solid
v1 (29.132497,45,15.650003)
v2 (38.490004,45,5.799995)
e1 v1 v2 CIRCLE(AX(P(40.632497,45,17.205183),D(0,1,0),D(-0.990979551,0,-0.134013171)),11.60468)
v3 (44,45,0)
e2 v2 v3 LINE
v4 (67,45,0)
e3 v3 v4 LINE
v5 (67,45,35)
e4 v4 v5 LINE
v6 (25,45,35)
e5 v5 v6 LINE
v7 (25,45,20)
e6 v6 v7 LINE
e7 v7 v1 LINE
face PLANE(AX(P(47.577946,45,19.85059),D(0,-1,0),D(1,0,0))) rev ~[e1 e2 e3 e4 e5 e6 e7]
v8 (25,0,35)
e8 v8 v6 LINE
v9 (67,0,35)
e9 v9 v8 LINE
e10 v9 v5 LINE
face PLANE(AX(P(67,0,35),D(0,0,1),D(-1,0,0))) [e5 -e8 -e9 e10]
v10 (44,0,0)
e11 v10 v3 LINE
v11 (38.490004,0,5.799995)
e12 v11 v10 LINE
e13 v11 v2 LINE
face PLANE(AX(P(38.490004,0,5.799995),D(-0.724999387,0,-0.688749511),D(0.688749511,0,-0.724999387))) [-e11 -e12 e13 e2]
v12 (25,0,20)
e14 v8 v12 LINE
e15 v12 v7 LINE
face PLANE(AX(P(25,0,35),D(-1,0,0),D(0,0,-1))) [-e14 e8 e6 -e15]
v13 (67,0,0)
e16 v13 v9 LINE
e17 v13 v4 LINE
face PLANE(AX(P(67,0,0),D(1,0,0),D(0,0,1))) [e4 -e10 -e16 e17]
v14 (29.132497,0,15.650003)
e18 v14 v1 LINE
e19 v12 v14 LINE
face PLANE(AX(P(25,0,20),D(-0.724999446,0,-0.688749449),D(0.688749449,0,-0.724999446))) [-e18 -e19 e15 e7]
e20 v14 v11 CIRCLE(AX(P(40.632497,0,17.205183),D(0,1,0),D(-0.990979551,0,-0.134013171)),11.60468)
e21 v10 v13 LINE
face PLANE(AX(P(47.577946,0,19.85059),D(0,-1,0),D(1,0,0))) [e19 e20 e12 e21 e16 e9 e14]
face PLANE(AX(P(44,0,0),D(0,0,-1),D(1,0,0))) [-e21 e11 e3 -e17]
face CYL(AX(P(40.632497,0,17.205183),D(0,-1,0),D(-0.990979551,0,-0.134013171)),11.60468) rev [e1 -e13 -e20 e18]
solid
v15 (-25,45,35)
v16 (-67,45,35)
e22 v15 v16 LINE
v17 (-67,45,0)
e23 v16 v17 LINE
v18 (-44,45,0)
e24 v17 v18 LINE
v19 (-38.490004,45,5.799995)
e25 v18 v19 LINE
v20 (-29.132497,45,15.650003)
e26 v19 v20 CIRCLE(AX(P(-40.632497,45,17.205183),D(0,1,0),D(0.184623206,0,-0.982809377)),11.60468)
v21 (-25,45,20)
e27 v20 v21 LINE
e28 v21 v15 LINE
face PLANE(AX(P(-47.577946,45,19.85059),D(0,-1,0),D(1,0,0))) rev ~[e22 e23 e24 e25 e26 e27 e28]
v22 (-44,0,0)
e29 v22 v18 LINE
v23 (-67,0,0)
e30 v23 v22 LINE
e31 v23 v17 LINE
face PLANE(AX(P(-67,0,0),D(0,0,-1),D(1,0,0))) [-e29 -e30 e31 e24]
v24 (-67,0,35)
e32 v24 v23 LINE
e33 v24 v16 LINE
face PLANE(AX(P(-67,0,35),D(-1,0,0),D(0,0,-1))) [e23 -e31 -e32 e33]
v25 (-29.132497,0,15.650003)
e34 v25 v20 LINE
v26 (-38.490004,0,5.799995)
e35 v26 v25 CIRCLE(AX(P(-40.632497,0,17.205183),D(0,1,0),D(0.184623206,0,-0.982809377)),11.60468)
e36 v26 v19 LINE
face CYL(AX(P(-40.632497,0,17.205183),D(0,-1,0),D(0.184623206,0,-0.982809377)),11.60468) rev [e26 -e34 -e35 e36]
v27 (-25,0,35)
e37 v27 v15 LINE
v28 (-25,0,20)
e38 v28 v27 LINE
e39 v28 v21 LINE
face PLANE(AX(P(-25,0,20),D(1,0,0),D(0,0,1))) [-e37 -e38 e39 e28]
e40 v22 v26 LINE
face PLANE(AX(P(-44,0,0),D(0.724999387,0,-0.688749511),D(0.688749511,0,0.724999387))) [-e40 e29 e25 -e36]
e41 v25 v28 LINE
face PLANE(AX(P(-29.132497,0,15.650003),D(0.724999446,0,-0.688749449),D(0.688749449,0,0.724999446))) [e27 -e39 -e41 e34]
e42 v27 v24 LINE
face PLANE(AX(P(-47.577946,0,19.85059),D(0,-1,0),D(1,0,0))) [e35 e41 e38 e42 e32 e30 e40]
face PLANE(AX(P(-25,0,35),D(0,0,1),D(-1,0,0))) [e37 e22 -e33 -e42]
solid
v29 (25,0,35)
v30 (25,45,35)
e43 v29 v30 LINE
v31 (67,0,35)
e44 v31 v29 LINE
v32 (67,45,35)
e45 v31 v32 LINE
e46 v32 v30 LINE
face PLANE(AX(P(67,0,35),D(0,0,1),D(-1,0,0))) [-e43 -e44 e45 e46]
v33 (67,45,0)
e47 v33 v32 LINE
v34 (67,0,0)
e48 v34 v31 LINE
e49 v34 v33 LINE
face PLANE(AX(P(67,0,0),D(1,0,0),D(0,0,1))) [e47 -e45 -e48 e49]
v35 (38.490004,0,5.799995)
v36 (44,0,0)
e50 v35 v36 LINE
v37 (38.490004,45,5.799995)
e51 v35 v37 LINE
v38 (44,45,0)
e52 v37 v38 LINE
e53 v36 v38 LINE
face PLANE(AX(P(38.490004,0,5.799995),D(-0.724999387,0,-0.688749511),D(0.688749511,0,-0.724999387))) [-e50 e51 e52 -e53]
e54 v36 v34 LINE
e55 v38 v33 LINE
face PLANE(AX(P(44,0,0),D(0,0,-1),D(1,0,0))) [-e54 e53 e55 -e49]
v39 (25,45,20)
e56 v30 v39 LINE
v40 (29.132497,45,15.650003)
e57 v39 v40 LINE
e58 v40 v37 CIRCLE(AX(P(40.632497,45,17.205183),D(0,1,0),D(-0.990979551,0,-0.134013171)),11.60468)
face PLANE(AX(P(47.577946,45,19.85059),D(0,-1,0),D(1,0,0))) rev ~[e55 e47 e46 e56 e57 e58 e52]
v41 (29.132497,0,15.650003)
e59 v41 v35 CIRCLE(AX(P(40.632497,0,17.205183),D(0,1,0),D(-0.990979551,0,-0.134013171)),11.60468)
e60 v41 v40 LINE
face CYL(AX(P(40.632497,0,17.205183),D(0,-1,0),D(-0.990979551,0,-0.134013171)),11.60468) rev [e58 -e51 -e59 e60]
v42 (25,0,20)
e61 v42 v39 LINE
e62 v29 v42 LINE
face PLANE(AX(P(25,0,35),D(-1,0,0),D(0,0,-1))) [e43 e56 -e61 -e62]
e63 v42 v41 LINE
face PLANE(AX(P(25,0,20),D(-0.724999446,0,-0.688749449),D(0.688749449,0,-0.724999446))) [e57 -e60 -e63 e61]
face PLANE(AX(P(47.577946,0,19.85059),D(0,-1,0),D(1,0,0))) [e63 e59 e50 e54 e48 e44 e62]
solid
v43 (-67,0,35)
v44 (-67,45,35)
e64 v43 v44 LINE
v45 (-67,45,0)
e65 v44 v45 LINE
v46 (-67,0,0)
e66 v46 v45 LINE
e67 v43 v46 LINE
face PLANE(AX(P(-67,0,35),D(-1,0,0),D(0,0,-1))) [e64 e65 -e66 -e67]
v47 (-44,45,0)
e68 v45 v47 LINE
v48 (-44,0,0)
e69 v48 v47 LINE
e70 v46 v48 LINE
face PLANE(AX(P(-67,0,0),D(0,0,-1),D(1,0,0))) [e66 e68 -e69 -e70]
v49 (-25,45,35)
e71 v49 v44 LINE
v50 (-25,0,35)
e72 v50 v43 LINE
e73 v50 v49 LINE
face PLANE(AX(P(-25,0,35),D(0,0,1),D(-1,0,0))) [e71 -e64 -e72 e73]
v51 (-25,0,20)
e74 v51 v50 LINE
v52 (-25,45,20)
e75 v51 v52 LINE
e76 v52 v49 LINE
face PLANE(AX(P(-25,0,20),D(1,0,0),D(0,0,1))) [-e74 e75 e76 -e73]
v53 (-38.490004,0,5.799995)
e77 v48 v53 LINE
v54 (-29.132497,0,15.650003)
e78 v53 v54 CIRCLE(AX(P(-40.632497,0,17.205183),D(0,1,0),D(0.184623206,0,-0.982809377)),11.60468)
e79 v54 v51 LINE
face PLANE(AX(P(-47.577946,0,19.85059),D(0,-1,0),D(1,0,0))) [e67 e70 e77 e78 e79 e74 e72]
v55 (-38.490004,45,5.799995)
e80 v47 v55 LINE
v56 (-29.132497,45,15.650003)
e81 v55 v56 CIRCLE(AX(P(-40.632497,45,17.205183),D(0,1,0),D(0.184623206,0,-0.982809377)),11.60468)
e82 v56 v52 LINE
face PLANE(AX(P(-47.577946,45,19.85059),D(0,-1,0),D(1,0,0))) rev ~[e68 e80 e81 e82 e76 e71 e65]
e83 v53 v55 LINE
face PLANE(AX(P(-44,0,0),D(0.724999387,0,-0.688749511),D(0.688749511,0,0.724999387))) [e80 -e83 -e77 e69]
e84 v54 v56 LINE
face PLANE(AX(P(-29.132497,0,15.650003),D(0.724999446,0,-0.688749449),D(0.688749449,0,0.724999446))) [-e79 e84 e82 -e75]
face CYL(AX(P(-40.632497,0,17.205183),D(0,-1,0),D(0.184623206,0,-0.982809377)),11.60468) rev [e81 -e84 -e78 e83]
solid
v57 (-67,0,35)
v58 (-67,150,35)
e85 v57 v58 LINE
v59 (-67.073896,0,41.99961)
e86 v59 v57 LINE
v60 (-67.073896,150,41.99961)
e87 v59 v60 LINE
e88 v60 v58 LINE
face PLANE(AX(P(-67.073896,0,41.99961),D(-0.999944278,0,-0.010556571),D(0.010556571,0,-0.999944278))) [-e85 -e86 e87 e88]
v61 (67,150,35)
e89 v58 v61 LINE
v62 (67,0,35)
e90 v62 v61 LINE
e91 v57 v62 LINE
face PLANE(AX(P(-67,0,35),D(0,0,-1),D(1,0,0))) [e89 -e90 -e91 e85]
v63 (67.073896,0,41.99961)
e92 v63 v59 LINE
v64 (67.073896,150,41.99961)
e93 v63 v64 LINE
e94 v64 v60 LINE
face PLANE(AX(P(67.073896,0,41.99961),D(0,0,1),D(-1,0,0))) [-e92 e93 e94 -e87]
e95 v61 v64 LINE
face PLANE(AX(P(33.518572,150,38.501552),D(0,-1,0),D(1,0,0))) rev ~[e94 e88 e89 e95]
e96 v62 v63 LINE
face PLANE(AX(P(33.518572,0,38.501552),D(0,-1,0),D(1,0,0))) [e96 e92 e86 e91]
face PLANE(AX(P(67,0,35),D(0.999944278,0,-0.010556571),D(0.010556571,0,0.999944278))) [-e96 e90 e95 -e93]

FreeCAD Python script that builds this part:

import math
import FreeCAD as App
import Part
import Sketcher

V = App.Vector
Q = App.Units.Quantity


def add_polygon(sketch, points):
    """Adds a closed chain of lines whose ends are joined by coincident constraints."""
    first, n = sketch.GeometryCount, len(points)
    for a, b in zip(points, points[1:] + points[:1]):
        sketch.addGeometry(Part.LineSegment(App.Vector(*a, 0), App.Vector(*b, 0)), False)
    for i in range(n):
        sketch.addConstraint(Sketcher.Constraint("Coincident", first + i, 2, first + (i + 1) % n, 1))

doc = App.newDocument("Part")
body = doc.addObject("PartDesign::Body", "Body")
body.AllowCompound = True

sketch1 = body.newObject("Sketcher::SketchObject", "Sketch")
sketch1.AttachmentSupport = (doc.getObject("XZ_Plane"), [""])
sketch1.MapMode = "FlatFace"
sketch1.addGeometry(Part.LineSegment(V(-25, 20, 0), V(-25, 35, 0)), False)
sketch1.addGeometry(Part.LineSegment(V(-25, 35, 0), V(-67, 35, 0)), False)
sketch1.addGeometry(Part.LineSegment(V(-67, 35, 0), V(-67, 0, 0)), False)
sketch1.addGeometry(Part.LineSegment(V(-67, 0, 0), V(-44, 0, 0)), False)
sketch1.addGeometry(Part.LineSegment(V(-44, 0, 0), V(-38.490004, 5.799995, 0)), False)
sketch1.addGeometry(Part.ArcOfCircle(Part.Circle(V(-40.632497, 17.205183, 0), V(0, 0, 1), 11.60468), math.radians(-7.70156), math.radians(280.639165)), False)
sketch1.addGeometry(Part.LineSegment(V(-29.132497, 15.650003, 0), V(-25, 20, 0)), False)
sketch1.addGeometry(Part.LineSegment(V(67, 35, 0), V(25, 35, 0)), False)
sketch1.addGeometry(Part.LineSegment(V(25, 35, 0), V(25, 20, 0)), False)
sketch1.addGeometry(Part.LineSegment(V(25, 20, 0), V(29.132497, 15.650003, 0)), False)
sketch1.addGeometry(Part.ArcOfCircle(Part.Circle(V(40.632497, 17.205183, 0), V(0, 0, 1), 11.60468), math.radians(-100.639165), math.radians(187.70156)), False)
sketch1.addGeometry(Part.LineSegment(V(38.490004, 5.799995, 0), V(44, 0, 0)), False)
sketch1.addGeometry(Part.LineSegment(V(44, 0, 0), V(67, 0, 0)), False)
sketch1.addGeometry(Part.LineSegment(V(67, 0, 0), V(67, 35, 0)), False)
sketch1.addConstraint(Sketcher.Constraint("Coincident", 0, 2, 1, 1))
sketch1.addConstraint(Sketcher.Constraint("Coincident", 1, 2, 2, 1))
sketch1.addConstraint(Sketcher.Constraint("Coincident", 2, 2, 3, 1))
sketch1.addConstraint(Sketcher.Constraint("Coincident", 3, 2, 4, 1))
sketch1.addConstraint(Sketcher.Constraint("Coincident", 4, 2, 5, 2))
sketch1.addConstraint(Sketcher.Constraint("Coincident", 5, 1, 6, 1))
sketch1.addConstraint(Sketcher.Constraint("Coincident", 6, 2, 0, 1))
sketch1.addConstraint(Sketcher.Constraint("Coincident", 7, 2, 8, 1))
sketch1.addConstraint(Sketcher.Constraint("Coincident", 8, 2, 9, 1))
sketch1.addConstraint(Sketcher.Constraint("Coincident", 9, 2, 10, 2))
sketch1.addConstraint(Sketcher.Constraint("Coincident", 10, 1, 11, 1))
sketch1.addConstraint(Sketcher.Constraint("Coincident", 11, 2, 12, 1))
sketch1.addConstraint(Sketcher.Constraint("Coincident", 12, 2, 13, 1))
sketch1.addConstraint(Sketcher.Constraint("Coincident", 13, 2, 7, 1))
sketch1.addConstraint(Sketcher.Constraint("Vertical", 0))
sketch1.addConstraint(Sketcher.Constraint("Horizontal", 1))
sketch1.addConstraint(Sketcher.Constraint("Vertical", 2))
sketch1.addConstraint(Sketcher.Constraint("Horizontal", 3))
sketch1.addConstraint(Sketcher.Constraint("Horizontal", 7))
sketch1.addConstraint(Sketcher.Constraint("Vertical", 8))
sketch1.addConstraint(Sketcher.Constraint("Horizontal", 12))
sketch1.addConstraint(Sketcher.Constraint("Vertical", 13))
sketch1.addConstraint(Sketcher.Constraint("Equal", 5, 10))
sketch1.addConstraint(Sketcher.Constraint("Symmetric", 3, 2, 11, 2, -1, 1))
sketch1.addConstraint(Sketcher.Constraint("Symmetric", 5, 3, 10, 3, -2))
sketch1.addConstraint(Sketcher.Constraint("Symmetric", 0, 2, 7, 2, -2))
sketch1.addConstraint(Sketcher.Constraint("Symmetric", 2, 2, 12, 2, -2))
sketch1.addConstraint(Sketcher.Constraint("Parallel", 4, 6))
sketch1.addConstraint(Sketcher.Constraint("Parallel", 9, 11))
sketch1.addConstraint(Sketcher.Constraint("Horizontal", 6, 2, 8, 2))
sketch1.addConstraint(Sketcher.Constraint("Horizontal", 5, 1, 9, 2))
sketch1.addConstraint(Sketcher.Constraint("DistanceX", 1, 2, 1, 1, Q("42 mm")))
sketch1.addConstraint(Sketcher.Constraint("DistanceX", 3, 1, 3, 2, Q("23 mm")))
sketch1.addConstraint(Sketcher.Constraint("DistanceY", 0, 1, 0, 2, Q("15 mm")))
sketch1.addConstraint(Sketcher.Constraint("DistanceY", 2, 2, 2, 1, Q("35 mm")))
sketch1.addConstraint(Sketcher.Constraint("Distance", 4, Q("8 mm")))
sketch1.addConstraint(Sketcher.Constraint("Distance", 6, Q("6 mm")))
sketch1.addConstraint(Sketcher.Constraint("DistanceX", 0, 2, -1, 1, Q("25 mm")))
sketch1.addConstraint(Sketcher.Constraint("DistanceX", 5, 3, 5, 1, Q("11.5 mm")))
sketch1.addConstraint(Sketcher.Constraint("Radius", 5, Q("11.60468 mm")))
pad1 = body.newObject("PartDesign::Pad", "Pad")
pad1.Profile = sketch1
pad1.Length = 45
pad1.Reversed = True
body2 = doc.addObject("PartDesign::Body", "Body001")

sketch2 = body2.newObject("Sketcher::SketchObject", "Sketch001")
sketch2.AttachmentSupport = (doc.getObject("XZ_Plane001"), [""])
sketch2.MapMode = "FlatFace"
add_polygon(sketch2, [(67, 35), (67.073896, 41.99961), (-67.073896, 41.99961), (-67, 35)])
sketch2.addConstraint(Sketcher.Constraint("Horizontal", 1))
sketch2.addConstraint(Sketcher.Constraint("Horizontal", 3))
sketch2.addConstraint(Sketcher.Constraint("Equal", 0, 2))
sketch2.addConstraint(Sketcher.Constraint("DistanceX", 3, 1, 3, 2, Q("134 mm")))
sketch2.addConstraint(Sketcher.Constraint("Distance", 0, Q("7 mm")))
sketch2.addConstraint(Sketcher.Constraint("DistanceX", 2, 2, -1, 1, Q("67 mm")))
sketch2.addConstraint(Sketcher.Constraint("DistanceY", -1, 1, 2, 2, Q("35 mm")))
sketch2.addConstraint(Sketcher.Constraint("DistanceX", 1, 2, 1, 1, Q("134.147792 mm")))
pad2 = body2.newObject("PartDesign::Pad", "Pad001")
pad2.Profile = sketch2
pad2.Length = 150
pad2.Reversed = True
body3 = doc.addObject("PartDesign::Body", "Body002")
body3.AllowCompound = True

sketch3 = body3.newObject("Sketcher::SketchObject", "Sketch002")
sketch3.AttachmentSupport = (doc.getObject("XZ_Plane002"), [""])
sketch3.MapMode = "FlatFace"
sketch3.addGeometry(Part.LineSegment(V(-25, 20, 0), V(-25, 35, 0)), False)
sketch3.addGeometry(Part.LineSegment(V(-25, 35, 0), V(-67, 35, 0)), False)
sketch3.addGeometry(Part.LineSegment(V(-67, 35, 0), V(-67, 0, 0)), False)
sketch3.addGeometry(Part.LineSegment(V(-67, 0, 0), V(-44, 0, 0)), False)
sketch3.addGeometry(Part.LineSegment(V(-44, 0, 0), V(-38.490004, 5.799995, 0)), False)
sketch3.addGeometry(Part.ArcOfCircle(Part.Circle(V(-40.632497, 17.205183, 0), V(0, 0, 1), 11.60468), math.radians(-7.70156), math.radians(280.639165)), False)
sketch3.addGeometry(Part.LineSegment(V(-29.132497, 15.650003, 0), V(-25, 20, 0)), False)
sketch3.addGeometry(Part.LineSegment(V(67, 35, 0), V(25, 35, 0)), False)
sketch3.addGeometry(Part.LineSegment(V(25, 35, 0), V(25, 20, 0)), False)
sketch3.addGeometry(Part.LineSegment(V(25, 20, 0), V(29.132497, 15.650003, 0)), False)
sketch3.addGeometry(Part.ArcOfCircle(Part.Circle(V(40.632497, 17.205183, 0), V(0, 0, 1), 11.60468), math.radians(-100.639165), math.radians(187.70156)), False)
sketch3.addGeometry(Part.LineSegment(V(38.490004, 5.799995, 0), V(44, 0, 0)), False)
sketch3.addGeometry(Part.LineSegment(V(44, 0, 0), V(67, 0, 0)), False)
sketch3.addGeometry(Part.LineSegment(V(67, 0, 0), V(67, 35, 0)), False)
sketch3.addConstraint(Sketcher.Constraint("Coincident", 0, 2, 1, 1))
sketch3.addConstraint(Sketcher.Constraint("Coincident", 1, 2, 2, 1))
sketch3.addConstraint(Sketcher.Constraint("Coincident", 2, 2, 3, 1))
sketch3.addConstraint(Sketcher.Constraint("Coincident", 3, 2, 4, 1))
sketch3.addConstraint(Sketcher.Constraint("Coincident", 4, 2, 5, 2))
sketch3.addConstraint(Sketcher.Constraint("Coincident", 5, 1, 6, 1))
sketch3.addConstraint(Sketcher.Constraint("Coincident", 6, 2, 0, 1))
sketch3.addConstraint(Sketcher.Constraint("Coincident", 7, 2, 8, 1))
sketch3.addConstraint(Sketcher.Constraint("Coincident", 8, 2, 9, 1))
sketch3.addConstraint(Sketcher.Constraint("Coincident", 9, 2, 10, 2))
sketch3.addConstraint(Sketcher.Constraint("Coincident", 10, 1, 11, 1))
sketch3.addConstraint(Sketcher.Constraint("Coincident", 11, 2, 12, 1))
sketch3.addConstraint(Sketcher.Constraint("Coincident", 12, 2, 13, 1))
sketch3.addConstraint(Sketcher.Constraint("Coincident", 13, 2, 7, 1))
sketch3.addConstraint(Sketcher.Constraint("Vertical", 0))
sketch3.addConstraint(Sketcher.Constraint("Horizontal", 1))
sketch3.addConstraint(Sketcher.Constraint("Vertical", 2))
sketch3.addConstraint(Sketcher.Constraint("Horizontal", 3))
sketch3.addConstraint(Sketcher.Constraint("Horizontal", 7))
sketch3.addConstraint(Sketcher.Constraint("Vertical", 8))
sketch3.addConstraint(Sketcher.Constraint("Horizontal", 12))
sketch3.addConstraint(Sketcher.Constraint("Vertical", 13))
sketch3.addConstraint(Sketcher.Constraint("Equal", 5, 10))
sketch3.addConstraint(Sketcher.Constraint("Symmetric", 3, 2, 11, 2, -1, 1))
sketch3.addConstraint(Sketcher.Constraint("Symmetric", 5, 3, 10, 3, -2))
sketch3.addConstraint(Sketcher.Constraint("Symmetric", 0, 2, 7, 2, -2))
sketch3.addConstraint(Sketcher.Constraint("Symmetric", 2, 2, 12, 2, -2))
sketch3.addConstraint(Sketcher.Constraint("Parallel", 4, 6))
sketch3.addConstraint(Sketcher.Constraint("Parallel", 9, 11))
sketch3.addConstraint(Sketcher.Constraint("Horizontal", 6, 2, 8, 2))
sketch3.addConstraint(Sketcher.Constraint("Horizontal", 5, 1, 9, 2))
sketch3.addConstraint(Sketcher.Constraint("DistanceX", 1, 2, 1, 1, Q("42 mm")))
sketch3.addConstraint(Sketcher.Constraint("DistanceX", 3, 1, 3, 2, Q("23 mm")))
sketch3.addConstraint(Sketcher.Constraint("DistanceY", 0, 1, 0, 2, Q("15 mm")))
sketch3.addConstraint(Sketcher.Constraint("DistanceY", 2, 2, 2, 1, Q("35 mm")))
sketch3.addConstraint(Sketcher.Constraint("Distance", 4, Q("8 mm")))
sketch3.addConstraint(Sketcher.Constraint("Distance", 6, Q("6 mm")))
sketch3.addConstraint(Sketcher.Constraint("DistanceX", 0, 2, -1, 1, Q("25 mm")))
sketch3.addConstraint(Sketcher.Constraint("DistanceX", 5, 3, 5, 1, Q("11.5 mm")))
sketch3.addConstraint(Sketcher.Constraint("Radius", 5, Q("11.60468 mm")))
pad3 = body3.newObject("PartDesign::Pad", "Pad002")
pad3.Profile = sketch3
pad3.Length = 45
pad3.Reversed = True

doc.recompute()
